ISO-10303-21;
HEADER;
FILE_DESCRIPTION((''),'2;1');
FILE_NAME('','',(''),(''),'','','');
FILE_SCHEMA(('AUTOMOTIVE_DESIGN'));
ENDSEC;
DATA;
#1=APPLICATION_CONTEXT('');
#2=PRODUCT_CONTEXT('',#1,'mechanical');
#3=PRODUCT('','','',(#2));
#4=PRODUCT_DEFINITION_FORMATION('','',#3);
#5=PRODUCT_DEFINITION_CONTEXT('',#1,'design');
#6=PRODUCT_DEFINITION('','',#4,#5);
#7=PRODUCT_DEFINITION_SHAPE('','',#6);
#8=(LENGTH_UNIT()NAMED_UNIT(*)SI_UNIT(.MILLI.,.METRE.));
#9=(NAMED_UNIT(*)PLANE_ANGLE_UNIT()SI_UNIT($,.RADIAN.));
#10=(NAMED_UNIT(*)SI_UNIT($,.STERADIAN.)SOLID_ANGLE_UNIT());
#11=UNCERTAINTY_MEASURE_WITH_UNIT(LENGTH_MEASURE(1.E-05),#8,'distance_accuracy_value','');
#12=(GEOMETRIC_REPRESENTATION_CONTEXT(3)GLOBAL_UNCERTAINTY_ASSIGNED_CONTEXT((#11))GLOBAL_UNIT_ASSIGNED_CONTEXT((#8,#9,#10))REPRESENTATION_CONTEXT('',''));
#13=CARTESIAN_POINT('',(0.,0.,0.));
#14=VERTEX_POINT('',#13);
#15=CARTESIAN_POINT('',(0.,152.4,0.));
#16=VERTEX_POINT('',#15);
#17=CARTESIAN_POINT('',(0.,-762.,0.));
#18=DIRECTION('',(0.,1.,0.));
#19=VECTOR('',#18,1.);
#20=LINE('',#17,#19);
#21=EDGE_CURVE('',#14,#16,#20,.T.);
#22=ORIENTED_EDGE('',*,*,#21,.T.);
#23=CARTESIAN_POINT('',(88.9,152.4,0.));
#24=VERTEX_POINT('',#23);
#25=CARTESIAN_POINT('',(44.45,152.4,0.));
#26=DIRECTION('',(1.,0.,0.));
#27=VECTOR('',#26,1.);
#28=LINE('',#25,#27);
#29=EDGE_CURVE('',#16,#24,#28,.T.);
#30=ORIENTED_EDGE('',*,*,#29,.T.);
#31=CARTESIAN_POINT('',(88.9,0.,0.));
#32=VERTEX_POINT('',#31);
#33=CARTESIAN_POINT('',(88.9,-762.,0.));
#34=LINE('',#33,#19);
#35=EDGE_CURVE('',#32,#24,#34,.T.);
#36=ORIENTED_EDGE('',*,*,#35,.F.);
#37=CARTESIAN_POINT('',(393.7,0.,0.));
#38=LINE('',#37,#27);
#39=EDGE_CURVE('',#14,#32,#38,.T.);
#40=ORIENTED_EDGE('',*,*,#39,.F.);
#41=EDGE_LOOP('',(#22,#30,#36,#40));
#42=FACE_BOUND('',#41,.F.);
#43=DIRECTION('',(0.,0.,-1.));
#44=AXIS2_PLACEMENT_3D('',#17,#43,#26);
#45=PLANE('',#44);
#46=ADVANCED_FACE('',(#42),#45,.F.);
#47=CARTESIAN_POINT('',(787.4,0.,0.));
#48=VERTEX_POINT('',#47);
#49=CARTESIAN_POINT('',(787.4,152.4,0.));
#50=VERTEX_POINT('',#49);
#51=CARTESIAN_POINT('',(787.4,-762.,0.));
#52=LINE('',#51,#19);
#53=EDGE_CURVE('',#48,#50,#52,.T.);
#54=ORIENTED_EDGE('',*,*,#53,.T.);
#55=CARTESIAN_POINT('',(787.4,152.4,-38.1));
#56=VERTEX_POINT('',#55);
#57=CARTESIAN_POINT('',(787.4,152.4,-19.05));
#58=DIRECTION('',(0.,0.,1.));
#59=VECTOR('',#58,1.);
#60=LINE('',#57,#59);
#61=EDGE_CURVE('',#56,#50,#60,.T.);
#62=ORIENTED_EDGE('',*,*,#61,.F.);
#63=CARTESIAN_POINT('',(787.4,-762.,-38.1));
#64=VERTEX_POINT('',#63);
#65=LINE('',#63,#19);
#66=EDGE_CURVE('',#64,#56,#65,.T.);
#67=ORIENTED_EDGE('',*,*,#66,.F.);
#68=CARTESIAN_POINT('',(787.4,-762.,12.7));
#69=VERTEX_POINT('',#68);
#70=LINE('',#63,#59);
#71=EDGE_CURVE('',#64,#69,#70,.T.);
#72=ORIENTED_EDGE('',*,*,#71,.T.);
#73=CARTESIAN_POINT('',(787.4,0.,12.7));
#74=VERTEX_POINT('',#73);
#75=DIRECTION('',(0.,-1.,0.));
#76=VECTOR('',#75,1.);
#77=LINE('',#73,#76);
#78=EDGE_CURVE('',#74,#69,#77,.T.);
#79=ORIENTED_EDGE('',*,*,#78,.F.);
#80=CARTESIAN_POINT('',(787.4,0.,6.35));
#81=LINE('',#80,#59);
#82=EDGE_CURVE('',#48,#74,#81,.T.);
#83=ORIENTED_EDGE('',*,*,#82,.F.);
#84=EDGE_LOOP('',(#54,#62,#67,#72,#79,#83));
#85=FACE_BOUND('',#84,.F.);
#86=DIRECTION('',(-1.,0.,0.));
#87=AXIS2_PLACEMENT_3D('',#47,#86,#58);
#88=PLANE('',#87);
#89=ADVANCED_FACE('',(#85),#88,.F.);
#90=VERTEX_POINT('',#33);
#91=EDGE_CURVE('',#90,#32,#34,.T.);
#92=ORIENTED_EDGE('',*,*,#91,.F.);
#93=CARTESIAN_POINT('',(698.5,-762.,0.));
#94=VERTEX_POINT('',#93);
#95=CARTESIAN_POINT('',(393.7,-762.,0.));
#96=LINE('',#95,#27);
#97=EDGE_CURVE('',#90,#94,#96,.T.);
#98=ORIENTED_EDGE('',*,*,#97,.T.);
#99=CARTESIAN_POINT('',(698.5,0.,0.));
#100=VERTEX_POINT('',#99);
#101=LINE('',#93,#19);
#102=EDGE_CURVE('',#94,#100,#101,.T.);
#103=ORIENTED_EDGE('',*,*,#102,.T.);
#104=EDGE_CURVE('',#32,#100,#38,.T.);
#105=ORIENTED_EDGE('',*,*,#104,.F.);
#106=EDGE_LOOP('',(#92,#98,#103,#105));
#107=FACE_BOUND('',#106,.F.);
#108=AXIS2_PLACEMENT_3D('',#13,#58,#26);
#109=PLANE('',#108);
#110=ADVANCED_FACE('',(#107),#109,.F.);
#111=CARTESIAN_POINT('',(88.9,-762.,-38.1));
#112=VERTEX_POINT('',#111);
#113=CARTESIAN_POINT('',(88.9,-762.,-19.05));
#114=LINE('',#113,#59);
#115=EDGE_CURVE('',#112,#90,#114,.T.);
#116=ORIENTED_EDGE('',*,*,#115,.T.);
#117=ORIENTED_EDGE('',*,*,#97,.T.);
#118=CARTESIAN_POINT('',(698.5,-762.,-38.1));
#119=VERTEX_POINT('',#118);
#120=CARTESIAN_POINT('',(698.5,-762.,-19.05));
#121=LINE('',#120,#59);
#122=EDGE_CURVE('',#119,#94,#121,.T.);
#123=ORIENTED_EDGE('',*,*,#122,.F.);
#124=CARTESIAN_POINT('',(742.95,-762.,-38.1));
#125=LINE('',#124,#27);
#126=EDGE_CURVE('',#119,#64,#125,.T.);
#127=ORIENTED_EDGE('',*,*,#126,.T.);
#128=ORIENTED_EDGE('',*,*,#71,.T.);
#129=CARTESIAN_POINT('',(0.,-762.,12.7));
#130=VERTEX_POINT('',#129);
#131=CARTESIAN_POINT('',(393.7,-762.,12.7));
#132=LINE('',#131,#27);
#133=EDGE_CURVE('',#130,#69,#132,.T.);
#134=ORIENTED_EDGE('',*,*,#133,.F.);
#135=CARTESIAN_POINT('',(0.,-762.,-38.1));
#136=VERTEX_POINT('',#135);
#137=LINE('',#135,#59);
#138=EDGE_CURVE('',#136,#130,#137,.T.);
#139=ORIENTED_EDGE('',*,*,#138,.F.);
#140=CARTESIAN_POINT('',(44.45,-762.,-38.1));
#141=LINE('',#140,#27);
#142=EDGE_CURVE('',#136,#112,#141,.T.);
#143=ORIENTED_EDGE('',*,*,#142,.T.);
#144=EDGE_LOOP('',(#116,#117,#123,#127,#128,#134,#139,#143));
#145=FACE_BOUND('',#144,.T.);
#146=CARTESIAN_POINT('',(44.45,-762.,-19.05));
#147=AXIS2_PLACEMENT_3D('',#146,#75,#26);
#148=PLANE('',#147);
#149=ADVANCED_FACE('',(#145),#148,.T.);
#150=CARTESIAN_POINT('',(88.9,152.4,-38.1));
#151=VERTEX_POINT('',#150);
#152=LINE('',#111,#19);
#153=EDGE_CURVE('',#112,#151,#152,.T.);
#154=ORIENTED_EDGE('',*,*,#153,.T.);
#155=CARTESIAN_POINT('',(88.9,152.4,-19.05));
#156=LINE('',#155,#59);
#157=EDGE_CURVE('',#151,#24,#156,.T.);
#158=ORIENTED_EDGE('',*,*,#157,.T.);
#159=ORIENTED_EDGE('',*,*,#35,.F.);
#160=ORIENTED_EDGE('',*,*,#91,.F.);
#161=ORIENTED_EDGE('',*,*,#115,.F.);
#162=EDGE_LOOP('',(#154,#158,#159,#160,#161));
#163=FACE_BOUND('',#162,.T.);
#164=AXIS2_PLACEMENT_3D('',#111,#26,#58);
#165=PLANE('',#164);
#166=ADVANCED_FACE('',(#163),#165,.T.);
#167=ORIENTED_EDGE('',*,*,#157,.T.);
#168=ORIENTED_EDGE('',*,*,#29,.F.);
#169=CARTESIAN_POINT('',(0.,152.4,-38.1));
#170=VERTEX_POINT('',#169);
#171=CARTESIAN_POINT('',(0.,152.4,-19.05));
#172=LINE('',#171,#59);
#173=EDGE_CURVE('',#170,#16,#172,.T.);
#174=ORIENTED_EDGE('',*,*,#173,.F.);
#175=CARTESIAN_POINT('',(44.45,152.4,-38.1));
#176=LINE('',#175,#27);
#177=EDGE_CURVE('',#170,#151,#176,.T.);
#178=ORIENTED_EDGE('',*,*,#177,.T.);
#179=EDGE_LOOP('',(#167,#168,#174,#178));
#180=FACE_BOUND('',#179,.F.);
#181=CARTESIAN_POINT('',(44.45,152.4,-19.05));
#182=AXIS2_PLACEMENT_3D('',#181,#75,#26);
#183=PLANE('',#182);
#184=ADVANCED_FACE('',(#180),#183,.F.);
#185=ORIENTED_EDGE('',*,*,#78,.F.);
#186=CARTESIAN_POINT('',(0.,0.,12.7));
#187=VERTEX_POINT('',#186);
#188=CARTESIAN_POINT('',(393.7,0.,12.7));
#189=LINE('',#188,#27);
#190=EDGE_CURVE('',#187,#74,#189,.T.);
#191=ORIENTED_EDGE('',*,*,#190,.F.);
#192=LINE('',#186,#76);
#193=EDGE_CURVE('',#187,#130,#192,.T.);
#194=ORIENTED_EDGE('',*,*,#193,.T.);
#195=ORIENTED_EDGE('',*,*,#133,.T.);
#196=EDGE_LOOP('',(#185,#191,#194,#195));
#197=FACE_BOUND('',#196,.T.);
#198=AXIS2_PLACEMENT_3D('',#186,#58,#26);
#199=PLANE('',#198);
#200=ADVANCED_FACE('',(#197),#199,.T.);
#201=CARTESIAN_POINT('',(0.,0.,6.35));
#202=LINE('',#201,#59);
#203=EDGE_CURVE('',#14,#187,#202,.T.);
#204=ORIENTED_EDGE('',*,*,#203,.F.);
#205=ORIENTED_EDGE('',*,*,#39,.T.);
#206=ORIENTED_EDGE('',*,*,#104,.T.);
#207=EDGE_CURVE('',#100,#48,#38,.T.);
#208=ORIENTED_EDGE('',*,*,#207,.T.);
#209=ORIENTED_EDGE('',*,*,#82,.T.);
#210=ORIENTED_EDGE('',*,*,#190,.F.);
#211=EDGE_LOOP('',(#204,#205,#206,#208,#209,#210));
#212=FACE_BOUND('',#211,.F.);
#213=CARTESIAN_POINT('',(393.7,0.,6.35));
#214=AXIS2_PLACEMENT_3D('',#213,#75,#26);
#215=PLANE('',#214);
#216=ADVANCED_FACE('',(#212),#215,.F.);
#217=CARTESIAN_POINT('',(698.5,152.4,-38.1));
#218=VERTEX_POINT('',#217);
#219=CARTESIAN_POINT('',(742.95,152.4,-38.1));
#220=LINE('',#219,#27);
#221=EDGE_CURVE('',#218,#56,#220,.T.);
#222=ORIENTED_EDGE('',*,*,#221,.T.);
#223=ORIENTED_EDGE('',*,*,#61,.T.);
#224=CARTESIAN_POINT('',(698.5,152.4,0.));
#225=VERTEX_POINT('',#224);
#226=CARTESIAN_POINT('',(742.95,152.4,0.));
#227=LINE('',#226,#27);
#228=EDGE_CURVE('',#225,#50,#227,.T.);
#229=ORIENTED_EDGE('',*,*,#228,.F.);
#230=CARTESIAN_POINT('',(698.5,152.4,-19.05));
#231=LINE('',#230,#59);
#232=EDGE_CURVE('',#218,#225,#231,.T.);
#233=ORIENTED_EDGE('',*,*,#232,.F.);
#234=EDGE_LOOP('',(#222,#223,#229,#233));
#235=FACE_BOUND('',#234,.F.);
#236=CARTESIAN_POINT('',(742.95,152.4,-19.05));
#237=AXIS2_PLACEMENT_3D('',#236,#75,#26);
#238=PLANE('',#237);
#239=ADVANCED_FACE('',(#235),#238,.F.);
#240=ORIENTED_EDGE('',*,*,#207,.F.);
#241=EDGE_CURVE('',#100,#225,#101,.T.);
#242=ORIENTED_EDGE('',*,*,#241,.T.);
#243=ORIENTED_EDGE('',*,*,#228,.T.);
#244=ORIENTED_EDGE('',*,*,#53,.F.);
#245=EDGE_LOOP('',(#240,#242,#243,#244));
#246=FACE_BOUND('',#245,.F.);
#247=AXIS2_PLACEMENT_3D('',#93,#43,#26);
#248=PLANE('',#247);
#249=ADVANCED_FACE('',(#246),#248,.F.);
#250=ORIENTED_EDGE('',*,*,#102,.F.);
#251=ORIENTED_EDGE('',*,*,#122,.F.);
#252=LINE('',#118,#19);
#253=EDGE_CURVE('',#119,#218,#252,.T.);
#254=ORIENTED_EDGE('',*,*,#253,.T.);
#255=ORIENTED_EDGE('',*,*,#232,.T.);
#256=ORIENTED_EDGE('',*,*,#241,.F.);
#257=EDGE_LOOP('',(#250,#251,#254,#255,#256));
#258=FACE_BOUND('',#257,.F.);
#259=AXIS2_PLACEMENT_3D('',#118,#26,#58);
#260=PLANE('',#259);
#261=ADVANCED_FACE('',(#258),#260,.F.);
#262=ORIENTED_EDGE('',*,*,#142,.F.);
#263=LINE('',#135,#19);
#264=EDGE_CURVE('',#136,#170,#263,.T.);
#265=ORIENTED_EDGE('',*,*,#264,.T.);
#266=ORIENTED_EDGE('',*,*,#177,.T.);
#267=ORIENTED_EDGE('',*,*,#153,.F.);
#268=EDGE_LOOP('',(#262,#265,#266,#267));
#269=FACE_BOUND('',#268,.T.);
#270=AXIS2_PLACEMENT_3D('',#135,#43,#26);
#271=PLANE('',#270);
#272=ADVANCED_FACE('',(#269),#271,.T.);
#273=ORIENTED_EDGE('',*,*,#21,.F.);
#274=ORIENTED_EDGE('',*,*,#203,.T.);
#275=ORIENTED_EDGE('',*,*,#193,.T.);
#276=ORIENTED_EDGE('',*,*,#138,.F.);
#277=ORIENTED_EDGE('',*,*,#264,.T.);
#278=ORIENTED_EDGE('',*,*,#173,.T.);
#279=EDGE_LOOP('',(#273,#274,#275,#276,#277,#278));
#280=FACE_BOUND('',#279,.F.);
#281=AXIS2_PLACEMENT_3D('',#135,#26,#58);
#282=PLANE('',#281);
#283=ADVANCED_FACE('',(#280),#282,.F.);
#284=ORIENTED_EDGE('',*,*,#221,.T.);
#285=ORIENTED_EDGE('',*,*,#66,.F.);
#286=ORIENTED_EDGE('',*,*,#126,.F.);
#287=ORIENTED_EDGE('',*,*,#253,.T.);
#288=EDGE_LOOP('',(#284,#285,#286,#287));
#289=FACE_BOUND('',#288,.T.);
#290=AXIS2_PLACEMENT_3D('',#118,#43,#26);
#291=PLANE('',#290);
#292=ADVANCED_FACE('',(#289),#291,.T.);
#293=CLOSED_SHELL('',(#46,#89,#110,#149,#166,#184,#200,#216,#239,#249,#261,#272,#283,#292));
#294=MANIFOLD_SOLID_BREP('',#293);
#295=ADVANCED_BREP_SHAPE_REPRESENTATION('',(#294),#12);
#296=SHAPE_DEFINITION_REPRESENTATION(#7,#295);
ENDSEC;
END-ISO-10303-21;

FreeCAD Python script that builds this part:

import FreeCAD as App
import Part
import Sketcher

V = App.Vector
Q = App.Units.Quantity


def add_polygon(sketch, points):
    """Adds a closed chain of lines whose ends are joined by coincident constraints."""
    first, n = sketch.GeometryCount, len(points)
    for a, b in zip(points, points[1:] + points[:1]):
        sketch.addGeometry(Part.LineSegment(App.Vector(*a, 0), App.Vector(*b, 0)), False)
    for i in range(n):
        sketch.addConstraint(Sketcher.Constraint("Coincident", first + i, 2, first + (i + 1) % n, 1))

doc = App.newDocument("Part")
body = doc.addObject("PartDesign::Body", "Body")

# Sketch on XZ plane
sketch1 = doc.addObject("Sketcher::SketchObject", "Sketch")
body.addObject(sketch1)
sketch1.AttachmentSupport = (doc.XZ_Plane, [""])
sketch1.MapMode = "FlatFace"
add_polygon(sketch1, [(0, 13), (0, 0), (787, 0), (787, 13)])  # lines 0-3
sketch1.addConstraint(Sketcher.Constraint("Vertical", 0))
sketch1.addConstraint(Sketcher.Constraint("Horizontal", 1))
sketch1.addConstraint(Sketcher.Constraint("Vertical", 2))
sketch1.addConstraint(Sketcher.Constraint("Horizontal", 3))
sketch1.addConstraint(Sketcher.Constraint("Coincident", 0, 2, -1, 1))
sketch1.addConstraint(Sketcher.Constraint("DistanceX", 1, 1, 1, 2, Q("31 in")))
sketch1.addConstraint(Sketcher.Constraint("DistanceY", 0, 2, 0, 1, Q("0.5 in")))
pad1 = doc.addObject("PartDesign::Pad", "Pad")
body.addObject(pad1)
pad1.Profile = sketch1
pad1.Length = Q("30 in")

# Sketch on XZ plane
sketch2 = doc.addObject("Sketcher::SketchObject", "Sketch001")
body.addObject(sketch2)
sketch2.AttachmentSupport = (doc.XZ_Plane, [""])
sketch2.MapMode = "FlatFace"
sketch2.AttachmentOffset = App.Placement(V(0, 0, 30 * 25.4), App.Rotation())
add_polygon(sketch2, [(0, 0), (0, -38), (89, -38), (89, 0)])  # lines 0-3
add_polygon(sketch2, [(698, 0), (698, -38), (787, -38), (787, 0)])  # lines 4-7
sketch2.addConstraint(Sketcher.Constraint("Vertical", 0))
sketch2.addConstraint(Sketcher.Constraint("Horizontal", 1))
sketch2.addConstraint(Sketcher.Constraint("Vertical", 2))
sketch2.addConstraint(Sketcher.Constraint("Horizontal", 3))
sketch2.addConstraint(Sketcher.Constraint("Vertical", 4))
sketch2.addConstraint(Sketcher.Constraint("Horizontal", 5))
sketch2.addConstraint(Sketcher.Constraint("Vertical", 6))
sketch2.addConstraint(Sketcher.Constraint("Horizontal", 7))
sketch2.addConstraint(Sketcher.Constraint("Coincident", 3, 2, -1, 1))
sketch2.addConstraint(Sketcher.Constraint("PointOnObject", 6, 2, -1))
sketch2.addConstraint(Sketcher.Constraint("Horizontal", 1, 2, 4, 2))
sketch2.addConstraint(Sketcher.Constraint("Equal", 3, 5))
sketch2.addConstraint(Sketcher.Constraint("DistanceX", 1, 1, 1, 2, Q("3.5 in")))
sketch2.addConstraint(Sketcher.Constraint("DistanceY", 0, 2, 0, 1, Q("1.5 in")))
sketch2.addConstraint(Sketcher.Constraint("DistanceX", -1, 1, 5, 2, Q("31 in")))
pad2 = doc.addObject("PartDesign::Pad", "Pad001")
body.addObject(pad2)
pad2.Profile = sketch2
pad2.Length = Q("36 in")
pad2.Reversed = True

doc.recompute()
